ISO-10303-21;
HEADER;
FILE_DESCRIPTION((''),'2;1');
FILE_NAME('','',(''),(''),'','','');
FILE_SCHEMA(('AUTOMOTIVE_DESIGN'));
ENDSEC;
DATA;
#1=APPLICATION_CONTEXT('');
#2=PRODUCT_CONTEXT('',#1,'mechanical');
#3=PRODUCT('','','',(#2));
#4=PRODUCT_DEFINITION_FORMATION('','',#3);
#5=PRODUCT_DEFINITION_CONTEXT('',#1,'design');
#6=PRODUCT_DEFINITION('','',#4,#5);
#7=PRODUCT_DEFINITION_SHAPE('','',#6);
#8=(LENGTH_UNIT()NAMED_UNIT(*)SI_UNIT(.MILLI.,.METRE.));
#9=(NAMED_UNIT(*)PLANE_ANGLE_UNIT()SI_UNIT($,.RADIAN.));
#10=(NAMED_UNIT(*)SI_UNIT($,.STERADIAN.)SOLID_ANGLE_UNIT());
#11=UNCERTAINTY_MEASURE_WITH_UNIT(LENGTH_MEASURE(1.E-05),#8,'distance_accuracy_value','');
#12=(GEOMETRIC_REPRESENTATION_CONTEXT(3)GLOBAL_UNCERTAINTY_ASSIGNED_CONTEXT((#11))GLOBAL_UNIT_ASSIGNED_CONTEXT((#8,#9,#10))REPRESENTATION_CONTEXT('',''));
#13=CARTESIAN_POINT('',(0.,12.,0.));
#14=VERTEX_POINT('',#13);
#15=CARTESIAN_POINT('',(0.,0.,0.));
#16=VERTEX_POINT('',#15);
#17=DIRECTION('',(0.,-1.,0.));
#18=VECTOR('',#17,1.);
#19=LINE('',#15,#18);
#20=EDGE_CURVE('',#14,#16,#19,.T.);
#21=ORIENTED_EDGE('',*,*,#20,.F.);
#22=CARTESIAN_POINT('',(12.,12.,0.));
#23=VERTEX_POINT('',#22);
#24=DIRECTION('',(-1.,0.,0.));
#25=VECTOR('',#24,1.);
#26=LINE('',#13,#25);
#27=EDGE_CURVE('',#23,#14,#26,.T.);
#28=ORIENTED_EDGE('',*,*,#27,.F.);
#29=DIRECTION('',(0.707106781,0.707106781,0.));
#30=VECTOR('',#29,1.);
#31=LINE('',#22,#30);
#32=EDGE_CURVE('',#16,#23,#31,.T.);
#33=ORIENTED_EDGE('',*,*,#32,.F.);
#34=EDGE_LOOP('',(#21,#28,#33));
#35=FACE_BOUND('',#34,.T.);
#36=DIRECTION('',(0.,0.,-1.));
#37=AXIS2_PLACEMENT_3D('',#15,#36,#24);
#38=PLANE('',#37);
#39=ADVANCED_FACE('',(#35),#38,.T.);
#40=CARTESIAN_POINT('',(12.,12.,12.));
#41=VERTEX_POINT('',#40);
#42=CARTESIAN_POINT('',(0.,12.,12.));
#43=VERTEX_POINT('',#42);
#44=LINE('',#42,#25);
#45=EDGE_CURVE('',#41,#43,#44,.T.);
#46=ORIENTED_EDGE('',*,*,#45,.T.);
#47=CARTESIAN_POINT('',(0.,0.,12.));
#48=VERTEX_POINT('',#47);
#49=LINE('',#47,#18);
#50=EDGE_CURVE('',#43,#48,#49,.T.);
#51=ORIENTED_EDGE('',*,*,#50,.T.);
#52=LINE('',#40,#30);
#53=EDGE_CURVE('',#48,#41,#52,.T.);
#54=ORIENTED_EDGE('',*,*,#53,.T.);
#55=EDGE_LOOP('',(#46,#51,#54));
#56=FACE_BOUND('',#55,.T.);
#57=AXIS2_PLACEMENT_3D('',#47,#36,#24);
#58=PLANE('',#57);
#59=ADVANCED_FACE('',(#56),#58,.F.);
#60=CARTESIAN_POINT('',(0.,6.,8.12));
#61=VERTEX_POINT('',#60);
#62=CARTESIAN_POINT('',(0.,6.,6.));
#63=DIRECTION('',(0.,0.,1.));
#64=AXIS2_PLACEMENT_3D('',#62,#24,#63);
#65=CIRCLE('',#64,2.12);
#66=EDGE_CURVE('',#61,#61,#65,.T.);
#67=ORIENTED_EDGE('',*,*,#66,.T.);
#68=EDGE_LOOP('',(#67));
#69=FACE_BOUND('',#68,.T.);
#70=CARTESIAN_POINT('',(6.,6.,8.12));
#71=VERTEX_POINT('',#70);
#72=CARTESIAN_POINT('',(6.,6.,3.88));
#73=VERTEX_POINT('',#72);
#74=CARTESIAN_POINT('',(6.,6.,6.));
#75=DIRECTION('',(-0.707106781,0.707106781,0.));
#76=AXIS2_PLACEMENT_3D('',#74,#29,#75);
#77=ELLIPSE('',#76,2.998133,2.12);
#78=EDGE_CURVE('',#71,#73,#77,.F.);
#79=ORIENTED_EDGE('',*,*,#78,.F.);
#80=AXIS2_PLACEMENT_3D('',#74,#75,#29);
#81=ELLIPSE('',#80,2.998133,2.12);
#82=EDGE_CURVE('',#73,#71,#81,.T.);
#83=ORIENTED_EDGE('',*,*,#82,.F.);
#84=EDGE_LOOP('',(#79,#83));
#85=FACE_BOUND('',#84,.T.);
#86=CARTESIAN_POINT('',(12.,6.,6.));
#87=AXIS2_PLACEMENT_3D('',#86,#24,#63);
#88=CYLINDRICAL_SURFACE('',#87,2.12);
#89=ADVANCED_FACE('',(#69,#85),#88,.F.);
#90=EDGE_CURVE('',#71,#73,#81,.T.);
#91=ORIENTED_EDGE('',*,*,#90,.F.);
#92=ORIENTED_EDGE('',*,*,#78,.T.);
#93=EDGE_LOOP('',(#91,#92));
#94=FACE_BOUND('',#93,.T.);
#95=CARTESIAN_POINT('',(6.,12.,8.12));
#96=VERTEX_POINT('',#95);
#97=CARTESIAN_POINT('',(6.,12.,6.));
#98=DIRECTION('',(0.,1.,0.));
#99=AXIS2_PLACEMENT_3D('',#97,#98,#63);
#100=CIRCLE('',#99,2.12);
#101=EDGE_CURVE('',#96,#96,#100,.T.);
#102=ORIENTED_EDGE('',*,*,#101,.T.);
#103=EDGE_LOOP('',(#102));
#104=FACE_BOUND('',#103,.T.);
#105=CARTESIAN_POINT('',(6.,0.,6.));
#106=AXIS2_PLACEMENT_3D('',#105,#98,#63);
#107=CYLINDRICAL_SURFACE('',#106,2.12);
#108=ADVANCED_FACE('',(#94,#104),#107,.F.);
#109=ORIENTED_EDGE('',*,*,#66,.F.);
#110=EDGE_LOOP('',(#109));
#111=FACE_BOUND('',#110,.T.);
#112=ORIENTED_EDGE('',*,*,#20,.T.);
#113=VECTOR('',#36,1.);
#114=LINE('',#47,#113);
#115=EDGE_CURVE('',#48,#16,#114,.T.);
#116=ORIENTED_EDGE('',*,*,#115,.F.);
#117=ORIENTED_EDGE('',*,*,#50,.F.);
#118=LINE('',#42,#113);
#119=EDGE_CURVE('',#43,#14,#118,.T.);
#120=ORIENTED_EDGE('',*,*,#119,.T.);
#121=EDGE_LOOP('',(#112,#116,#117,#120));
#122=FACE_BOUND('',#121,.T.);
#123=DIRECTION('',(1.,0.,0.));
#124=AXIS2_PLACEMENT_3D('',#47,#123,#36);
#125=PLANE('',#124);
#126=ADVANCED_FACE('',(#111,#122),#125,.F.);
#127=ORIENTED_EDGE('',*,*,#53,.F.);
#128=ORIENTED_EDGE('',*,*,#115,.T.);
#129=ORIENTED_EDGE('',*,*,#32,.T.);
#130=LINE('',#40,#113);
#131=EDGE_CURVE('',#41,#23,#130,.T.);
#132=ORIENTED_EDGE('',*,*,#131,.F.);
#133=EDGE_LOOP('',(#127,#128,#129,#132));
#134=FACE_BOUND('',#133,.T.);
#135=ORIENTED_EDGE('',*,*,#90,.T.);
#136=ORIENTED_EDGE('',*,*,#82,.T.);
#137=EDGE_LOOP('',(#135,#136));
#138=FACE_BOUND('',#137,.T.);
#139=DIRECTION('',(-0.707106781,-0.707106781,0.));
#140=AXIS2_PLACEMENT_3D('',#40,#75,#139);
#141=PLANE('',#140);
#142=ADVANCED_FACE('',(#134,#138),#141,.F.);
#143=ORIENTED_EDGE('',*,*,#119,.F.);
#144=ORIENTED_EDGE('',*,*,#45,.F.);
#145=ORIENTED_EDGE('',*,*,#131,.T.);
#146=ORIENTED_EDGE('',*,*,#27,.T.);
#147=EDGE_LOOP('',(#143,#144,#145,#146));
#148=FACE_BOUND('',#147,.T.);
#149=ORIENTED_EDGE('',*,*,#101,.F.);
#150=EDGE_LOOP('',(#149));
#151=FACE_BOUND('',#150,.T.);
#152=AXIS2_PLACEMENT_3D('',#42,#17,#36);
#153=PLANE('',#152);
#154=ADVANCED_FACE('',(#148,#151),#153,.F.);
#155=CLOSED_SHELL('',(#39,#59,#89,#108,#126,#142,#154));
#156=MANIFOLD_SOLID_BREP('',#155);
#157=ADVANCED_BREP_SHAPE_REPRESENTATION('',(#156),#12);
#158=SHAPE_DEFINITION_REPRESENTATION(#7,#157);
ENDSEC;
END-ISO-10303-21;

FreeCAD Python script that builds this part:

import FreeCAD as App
import Part
import Sketcher
Q = App.Units.Quantity


def add_polygon(sketch, points):
    """Adds a closed chain of lines whose ends are joined by coincident constraints."""
    first, n = sketch.GeometryCount, len(points)
    for a, b in zip(points, points[1:] + points[:1]):
        sketch.addGeometry(Part.LineSegment(App.Vector(*a, 0), App.Vector(*b, 0)), False)
    for i in range(n):
        sketch.addConstraint(Sketcher.Constraint("Coincident", first + i, 2, first + (i + 1) % n, 1))

doc = App.newDocument("Part")
body = doc.addObject("PartDesign::Body", "Body")

# Sketch on XY plane
sketch1 = body.newObject("Sketcher::SketchObject", "Sketch")
sketch1.AttachmentSupport = (doc.getObject("XY_Plane"), [""])
sketch1.MapMode = "FlatFace"
add_polygon(sketch1, [(0, 12), (0, 0), (12, 12)])  # lines 0-2
sketch1.addConstraint(Sketcher.Constraint("Vertical", 0))
sketch1.addConstraint(Sketcher.Constraint("Horizontal", 2))
sketch1.addConstraint(Sketcher.Constraint("Coincident", 0, 2, -1, 1))
sketch1.addConstraint(Sketcher.Constraint("Equal", 2, 0))
sketch1.addConstraint(Sketcher.Constraint("DistanceX", 2, 2, 2, 1, Q("12 mm")))
pad1 = body.newObject("PartDesign::Pad", "Pad")
pad1.Profile = sketch1
pad1.Length = 12

# Sketch on XZ plane
sketch2 = body.newObject("Sketcher::SketchObject", "Sketch001")
sketch2.AttachmentSupport = (doc.getObject("XZ_Plane"), [""])
sketch2.MapMode = "FlatFace"
sketch2.AttachmentOffset = App.Placement(App.Vector(0, 0, -12), App.Rotation())
sketch2.addGeometry(Part.Circle(App.Vector(6, 6, 0), App.Vector(0, 0, 1), 2.1), False)
sketch2.addConstraint(Sketcher.Constraint("Diameter", 0, Q("4.24 mm")))
sketch2.addConstraint(Sketcher.Constraint("DistanceX", -1, 1, 0, 3, Q("6 mm")))
sketch2.addConstraint(Sketcher.Constraint("DistanceY", -1, 1, 0, 3, Q("6 mm")))
pocket1 = body.newObject("PartDesign::Pocket", "Pocket")
pocket1.Profile = sketch2
pocket1.Length = 12
pocket1.Reversed = True

# Sketch on YZ plane
sketch3 = body.newObject("Sketcher::SketchObject", "Sketch002")
sketch3.AttachmentSupport = (doc.getObject("YZ_Plane"), [""])
sketch3.MapMode = "FlatFace"
sketch3.addGeometry(Part.Circle(App.Vector(6, 6, 0), App.Vector(0, 0, 1), 2.1), False)
sketch3.addConstraint(Sketcher.Constraint("Diameter", 0, Q("4.24 mm")))
sketch3.addConstraint(Sketcher.Constraint("DistanceX", -1, 1, 0, 3, Q("6 mm")))
sketch3.addConstraint(Sketcher.Constraint("DistanceY", -1, 1, 0, 3, Q("6 mm")))
pocket2 = body.newObject("PartDesign::Pocket", "Pocket001")
pocket2.Profile = sketch3
pocket2.Length = 12
pocket2.Reversed = True

doc.recompute()
